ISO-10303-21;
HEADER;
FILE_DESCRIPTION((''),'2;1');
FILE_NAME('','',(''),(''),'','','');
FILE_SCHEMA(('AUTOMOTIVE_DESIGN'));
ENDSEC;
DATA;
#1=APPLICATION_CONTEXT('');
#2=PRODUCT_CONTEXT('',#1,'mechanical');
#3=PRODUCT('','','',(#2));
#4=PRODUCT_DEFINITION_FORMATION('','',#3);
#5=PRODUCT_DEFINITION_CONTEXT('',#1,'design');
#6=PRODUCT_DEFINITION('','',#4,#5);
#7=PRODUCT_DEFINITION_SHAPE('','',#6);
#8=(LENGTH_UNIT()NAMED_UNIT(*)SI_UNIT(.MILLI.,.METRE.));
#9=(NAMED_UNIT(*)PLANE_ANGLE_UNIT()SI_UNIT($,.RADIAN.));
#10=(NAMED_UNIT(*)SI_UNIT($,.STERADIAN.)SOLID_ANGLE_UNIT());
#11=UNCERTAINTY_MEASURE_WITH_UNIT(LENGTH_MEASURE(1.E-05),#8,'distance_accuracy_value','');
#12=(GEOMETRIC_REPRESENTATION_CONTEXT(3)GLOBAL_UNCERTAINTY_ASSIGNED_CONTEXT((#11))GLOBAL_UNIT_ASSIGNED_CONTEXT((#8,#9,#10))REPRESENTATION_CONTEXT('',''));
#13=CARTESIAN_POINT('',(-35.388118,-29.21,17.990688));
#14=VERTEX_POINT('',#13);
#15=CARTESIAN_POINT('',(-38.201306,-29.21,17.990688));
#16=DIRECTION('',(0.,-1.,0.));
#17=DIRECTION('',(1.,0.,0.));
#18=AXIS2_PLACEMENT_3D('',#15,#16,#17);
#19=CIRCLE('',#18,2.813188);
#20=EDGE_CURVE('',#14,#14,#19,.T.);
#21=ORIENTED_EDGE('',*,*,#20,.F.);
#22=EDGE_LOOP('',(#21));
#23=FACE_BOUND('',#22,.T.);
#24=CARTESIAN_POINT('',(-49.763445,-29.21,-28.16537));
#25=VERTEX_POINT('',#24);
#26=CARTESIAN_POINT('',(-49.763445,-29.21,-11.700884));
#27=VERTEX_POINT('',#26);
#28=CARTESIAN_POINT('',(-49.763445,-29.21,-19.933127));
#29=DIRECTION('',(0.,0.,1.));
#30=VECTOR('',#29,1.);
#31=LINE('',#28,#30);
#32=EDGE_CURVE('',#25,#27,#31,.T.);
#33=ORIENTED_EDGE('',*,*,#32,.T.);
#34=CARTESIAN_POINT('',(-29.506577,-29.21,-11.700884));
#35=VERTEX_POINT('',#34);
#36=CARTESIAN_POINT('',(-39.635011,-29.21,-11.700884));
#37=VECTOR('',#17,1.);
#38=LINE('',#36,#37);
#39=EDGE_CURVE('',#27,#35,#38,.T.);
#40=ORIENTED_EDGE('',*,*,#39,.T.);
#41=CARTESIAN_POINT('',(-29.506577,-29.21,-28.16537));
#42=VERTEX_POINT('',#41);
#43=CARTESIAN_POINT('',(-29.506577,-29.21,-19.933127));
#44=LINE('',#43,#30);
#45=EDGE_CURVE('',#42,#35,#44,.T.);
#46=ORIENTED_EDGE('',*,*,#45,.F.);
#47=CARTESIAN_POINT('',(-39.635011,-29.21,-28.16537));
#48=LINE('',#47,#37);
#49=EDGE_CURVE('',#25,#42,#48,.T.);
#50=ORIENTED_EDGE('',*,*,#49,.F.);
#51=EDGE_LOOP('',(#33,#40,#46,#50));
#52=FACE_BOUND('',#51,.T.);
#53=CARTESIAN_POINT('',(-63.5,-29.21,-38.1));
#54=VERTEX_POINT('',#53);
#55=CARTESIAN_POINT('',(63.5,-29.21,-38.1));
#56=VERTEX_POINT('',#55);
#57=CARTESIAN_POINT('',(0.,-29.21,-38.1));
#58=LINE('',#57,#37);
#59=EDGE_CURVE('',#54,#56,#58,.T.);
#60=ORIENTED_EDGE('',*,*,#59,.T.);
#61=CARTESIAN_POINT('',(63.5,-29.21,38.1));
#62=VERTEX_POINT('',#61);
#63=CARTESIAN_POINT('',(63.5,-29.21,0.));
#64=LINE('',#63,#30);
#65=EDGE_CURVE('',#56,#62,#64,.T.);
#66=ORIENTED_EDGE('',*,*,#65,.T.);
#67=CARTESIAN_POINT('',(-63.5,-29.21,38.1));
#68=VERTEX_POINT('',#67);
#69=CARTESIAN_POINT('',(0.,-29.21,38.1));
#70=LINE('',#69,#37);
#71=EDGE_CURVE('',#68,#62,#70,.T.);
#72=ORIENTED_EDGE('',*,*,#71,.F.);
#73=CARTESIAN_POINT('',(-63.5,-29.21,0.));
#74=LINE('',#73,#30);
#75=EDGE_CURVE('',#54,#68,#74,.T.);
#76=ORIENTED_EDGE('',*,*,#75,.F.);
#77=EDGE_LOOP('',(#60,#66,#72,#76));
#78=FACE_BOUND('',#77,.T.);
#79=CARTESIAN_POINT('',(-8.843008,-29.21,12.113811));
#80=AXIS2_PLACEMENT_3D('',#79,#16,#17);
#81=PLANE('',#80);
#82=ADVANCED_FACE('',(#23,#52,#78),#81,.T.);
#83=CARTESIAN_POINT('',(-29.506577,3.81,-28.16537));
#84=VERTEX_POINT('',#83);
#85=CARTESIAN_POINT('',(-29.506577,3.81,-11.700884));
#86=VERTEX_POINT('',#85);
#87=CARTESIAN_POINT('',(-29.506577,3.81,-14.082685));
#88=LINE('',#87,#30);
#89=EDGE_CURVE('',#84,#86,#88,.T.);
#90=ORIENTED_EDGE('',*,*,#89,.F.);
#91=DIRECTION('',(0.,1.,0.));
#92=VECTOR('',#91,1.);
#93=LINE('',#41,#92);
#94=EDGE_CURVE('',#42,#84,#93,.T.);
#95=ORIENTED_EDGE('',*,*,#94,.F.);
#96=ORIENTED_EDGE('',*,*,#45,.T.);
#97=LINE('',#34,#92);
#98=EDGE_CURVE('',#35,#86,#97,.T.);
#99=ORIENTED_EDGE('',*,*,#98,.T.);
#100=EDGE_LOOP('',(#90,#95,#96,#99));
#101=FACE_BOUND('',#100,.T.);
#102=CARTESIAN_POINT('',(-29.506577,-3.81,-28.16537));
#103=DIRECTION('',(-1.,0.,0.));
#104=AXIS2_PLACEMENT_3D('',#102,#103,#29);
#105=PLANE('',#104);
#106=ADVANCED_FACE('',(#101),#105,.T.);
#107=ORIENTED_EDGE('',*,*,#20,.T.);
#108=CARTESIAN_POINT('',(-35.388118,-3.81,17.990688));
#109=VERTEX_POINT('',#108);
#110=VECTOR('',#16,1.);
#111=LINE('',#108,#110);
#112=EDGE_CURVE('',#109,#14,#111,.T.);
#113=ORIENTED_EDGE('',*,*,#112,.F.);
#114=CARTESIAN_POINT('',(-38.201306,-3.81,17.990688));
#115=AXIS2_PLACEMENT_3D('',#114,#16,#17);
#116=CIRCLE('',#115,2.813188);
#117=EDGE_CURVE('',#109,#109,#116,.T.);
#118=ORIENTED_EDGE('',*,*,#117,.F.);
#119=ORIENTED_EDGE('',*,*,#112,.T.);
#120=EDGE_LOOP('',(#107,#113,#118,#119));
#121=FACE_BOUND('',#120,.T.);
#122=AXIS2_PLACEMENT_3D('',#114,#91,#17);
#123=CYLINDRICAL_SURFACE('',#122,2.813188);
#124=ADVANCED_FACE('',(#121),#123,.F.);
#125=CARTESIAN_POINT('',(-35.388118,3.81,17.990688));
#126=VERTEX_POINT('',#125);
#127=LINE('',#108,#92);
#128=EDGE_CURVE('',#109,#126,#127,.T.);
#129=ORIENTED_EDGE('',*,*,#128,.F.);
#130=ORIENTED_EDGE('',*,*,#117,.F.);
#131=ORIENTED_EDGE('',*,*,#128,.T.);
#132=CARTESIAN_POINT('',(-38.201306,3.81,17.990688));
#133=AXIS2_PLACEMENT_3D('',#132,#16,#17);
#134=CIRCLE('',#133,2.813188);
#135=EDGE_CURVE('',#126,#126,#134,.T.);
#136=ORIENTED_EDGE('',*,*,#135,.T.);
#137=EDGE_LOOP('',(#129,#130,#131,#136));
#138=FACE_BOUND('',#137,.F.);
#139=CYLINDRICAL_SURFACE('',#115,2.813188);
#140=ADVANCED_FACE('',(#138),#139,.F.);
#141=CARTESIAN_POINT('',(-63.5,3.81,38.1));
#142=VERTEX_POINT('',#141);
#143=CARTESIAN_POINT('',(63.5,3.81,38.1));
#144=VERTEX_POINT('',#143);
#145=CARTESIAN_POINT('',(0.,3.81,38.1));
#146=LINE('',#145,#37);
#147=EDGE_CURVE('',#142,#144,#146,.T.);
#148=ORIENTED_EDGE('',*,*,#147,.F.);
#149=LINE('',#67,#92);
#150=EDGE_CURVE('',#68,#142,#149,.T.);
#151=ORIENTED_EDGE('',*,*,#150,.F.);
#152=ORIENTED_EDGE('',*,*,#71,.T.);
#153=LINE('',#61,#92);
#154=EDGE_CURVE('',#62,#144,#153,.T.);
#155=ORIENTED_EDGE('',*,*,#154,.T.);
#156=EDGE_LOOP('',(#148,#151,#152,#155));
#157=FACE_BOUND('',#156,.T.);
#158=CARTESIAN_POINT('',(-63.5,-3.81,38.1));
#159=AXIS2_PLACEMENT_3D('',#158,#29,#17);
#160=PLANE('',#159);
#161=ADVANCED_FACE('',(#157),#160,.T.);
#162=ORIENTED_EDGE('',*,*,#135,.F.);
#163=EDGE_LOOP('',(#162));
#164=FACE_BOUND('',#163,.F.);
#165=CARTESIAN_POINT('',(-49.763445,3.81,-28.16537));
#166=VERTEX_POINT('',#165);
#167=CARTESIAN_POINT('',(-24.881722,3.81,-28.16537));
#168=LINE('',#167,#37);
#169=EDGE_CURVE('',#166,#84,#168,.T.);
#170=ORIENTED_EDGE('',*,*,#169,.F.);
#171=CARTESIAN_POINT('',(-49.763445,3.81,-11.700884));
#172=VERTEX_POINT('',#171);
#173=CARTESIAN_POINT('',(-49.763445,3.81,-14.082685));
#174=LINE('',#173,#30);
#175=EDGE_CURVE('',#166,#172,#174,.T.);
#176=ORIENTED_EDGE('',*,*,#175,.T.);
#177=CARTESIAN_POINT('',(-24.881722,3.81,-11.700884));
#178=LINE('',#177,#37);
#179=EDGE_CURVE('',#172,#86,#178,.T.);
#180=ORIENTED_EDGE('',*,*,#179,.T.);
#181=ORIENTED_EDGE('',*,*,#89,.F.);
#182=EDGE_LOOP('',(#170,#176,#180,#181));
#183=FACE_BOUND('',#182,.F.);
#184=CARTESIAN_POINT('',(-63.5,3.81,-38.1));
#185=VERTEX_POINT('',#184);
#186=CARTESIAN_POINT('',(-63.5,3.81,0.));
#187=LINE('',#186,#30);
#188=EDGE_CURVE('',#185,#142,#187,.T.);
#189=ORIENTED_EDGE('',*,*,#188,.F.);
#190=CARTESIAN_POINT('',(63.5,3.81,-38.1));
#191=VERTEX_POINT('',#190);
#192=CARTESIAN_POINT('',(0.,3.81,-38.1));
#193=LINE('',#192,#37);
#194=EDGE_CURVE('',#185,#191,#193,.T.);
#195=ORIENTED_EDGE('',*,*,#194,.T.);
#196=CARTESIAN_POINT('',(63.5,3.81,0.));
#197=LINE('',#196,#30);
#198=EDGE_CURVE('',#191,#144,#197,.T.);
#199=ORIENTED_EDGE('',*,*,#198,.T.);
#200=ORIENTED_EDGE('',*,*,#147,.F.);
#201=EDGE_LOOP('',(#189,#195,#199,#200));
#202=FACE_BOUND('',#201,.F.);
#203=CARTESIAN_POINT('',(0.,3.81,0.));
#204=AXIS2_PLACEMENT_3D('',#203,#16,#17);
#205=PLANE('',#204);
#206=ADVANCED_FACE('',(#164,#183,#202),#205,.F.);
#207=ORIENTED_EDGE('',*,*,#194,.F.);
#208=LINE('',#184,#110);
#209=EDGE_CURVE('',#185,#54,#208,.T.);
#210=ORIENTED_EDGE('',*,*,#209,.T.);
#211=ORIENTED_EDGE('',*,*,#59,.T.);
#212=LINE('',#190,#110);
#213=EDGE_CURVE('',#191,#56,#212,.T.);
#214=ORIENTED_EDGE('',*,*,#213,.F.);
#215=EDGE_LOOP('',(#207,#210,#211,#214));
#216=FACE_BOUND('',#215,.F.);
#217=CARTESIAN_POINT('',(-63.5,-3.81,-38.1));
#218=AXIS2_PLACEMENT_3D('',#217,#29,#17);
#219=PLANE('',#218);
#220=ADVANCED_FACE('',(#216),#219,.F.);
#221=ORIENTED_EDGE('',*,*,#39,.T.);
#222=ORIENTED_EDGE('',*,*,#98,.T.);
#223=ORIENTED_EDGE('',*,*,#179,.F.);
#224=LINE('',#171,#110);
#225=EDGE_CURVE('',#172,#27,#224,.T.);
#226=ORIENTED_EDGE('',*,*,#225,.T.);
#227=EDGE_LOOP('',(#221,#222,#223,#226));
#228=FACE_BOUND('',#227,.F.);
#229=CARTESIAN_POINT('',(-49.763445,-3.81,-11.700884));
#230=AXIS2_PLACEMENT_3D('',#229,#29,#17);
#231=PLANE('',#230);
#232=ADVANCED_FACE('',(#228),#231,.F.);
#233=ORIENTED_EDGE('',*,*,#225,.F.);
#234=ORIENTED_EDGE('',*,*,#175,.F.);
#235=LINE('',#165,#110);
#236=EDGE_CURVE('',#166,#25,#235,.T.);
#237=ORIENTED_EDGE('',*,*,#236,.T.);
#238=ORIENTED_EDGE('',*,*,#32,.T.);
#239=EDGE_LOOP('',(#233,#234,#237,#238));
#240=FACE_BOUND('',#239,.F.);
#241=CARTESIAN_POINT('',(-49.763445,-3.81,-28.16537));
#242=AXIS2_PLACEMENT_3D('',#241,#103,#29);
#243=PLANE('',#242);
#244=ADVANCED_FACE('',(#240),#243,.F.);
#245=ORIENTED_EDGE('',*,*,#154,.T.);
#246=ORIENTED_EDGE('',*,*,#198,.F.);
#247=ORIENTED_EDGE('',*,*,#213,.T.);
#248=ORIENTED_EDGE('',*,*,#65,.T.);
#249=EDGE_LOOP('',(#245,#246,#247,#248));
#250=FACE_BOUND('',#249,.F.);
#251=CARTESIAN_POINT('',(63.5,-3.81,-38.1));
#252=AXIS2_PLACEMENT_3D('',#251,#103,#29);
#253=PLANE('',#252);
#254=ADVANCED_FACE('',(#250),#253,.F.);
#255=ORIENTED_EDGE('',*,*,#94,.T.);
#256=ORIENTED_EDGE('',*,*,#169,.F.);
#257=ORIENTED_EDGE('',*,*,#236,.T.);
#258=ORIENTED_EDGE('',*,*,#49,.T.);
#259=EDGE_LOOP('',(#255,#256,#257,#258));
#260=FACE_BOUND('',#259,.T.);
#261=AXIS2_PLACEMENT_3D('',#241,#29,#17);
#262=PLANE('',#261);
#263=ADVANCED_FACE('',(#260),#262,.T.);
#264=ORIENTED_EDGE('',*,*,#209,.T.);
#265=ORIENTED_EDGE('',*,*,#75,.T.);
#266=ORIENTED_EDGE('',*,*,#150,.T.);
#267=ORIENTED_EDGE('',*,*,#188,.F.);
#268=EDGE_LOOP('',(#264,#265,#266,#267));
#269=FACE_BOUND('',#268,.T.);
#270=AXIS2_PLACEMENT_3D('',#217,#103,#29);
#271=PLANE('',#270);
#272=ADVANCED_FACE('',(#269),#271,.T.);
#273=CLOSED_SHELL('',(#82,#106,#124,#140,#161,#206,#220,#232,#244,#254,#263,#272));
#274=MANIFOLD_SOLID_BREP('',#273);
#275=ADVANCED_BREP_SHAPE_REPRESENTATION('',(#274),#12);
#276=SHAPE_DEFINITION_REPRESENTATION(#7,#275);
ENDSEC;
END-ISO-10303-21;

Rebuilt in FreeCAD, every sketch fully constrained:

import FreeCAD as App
import Part
import Sketcher

V = App.Vector
Q = App.Units.Quantity

doc = App.newDocument("Part")
body = doc.addObject("PartDesign::Body", "Body")

sketch1 = body.newObject("Sketcher::SketchObject", "Sketch")
sketch1.AttachmentSupport = (doc.getObject("XZ_Plane"), [""])
sketch1.MapMode = "FlatFace"
sketch1.addGeometry(Part.LineSegment(V(-64, 38, 0), V(-64, -38, 0)), False)
sketch1.addGeometry(Part.LineSegment(V(-64, -38, 0), V(64, -38, 0)), False)
sketch1.addGeometry(Part.LineSegment(V(64, -38, 0), V(64, 38, 0)), False)
sketch1.addGeometry(Part.LineSegment(V(64, 38, 0), V(-64, 38, 0)), False)
sketch1.addConstraint(Sketcher.Constraint("Coincident", 0, 2, 1, 1))
sketch1.addConstraint(Sketcher.Constraint("Coincident", 1, 2, 2, 1))
sketch1.addConstraint(Sketcher.Constraint("Coincident", 2, 2, 3, 1))
sketch1.addConstraint(Sketcher.Constraint("Coincident", 3, 2, 0, 1))
sketch1.addConstraint(Sketcher.Constraint("Vertical", 0))
sketch1.addConstraint(Sketcher.Constraint("Horizontal", 1))
sketch1.addConstraint(Sketcher.Constraint("Vertical", 2))
sketch1.addConstraint(Sketcher.Constraint("Horizontal", 3))
sketch1.addConstraint(Sketcher.Constraint("Symmetric", 0, 2, 2, 2, -1, 1))
sketch1.addConstraint(Sketcher.Constraint("DistanceX", 1, 1, 1, 2, Q("5 in")))
sketch1.addConstraint(Sketcher.Constraint("DistanceY", 0, 2, 0, 1, Q("3 in")))
pad1 = body.newObject("PartDesign::Pad", "Pad")
pad1.Profile = sketch1
pad1.Length = Q("0.3 in")
pad1.Midplane = True

sketch2 = body.newObject("Sketcher::SketchObject", "Sketch001")
sketch2.AttachmentSupport = (doc.getObject("XZ_Plane"), [""])
sketch2.MapMode = "FlatFace"
sketch2.AttachmentOffset = App.Placement(V(0, 0, 0.15 * 25.4), App.Rotation())
sketch2.addGeometry(Part.Circle(V(-38.2, 18, 0), V(0, 0, 1), 2.8), False)
sketch2.addConstraint(Sketcher.Constraint("Diameter", 0, Q("5.626376 mm")))
sketch2.addConstraint(Sketcher.Constraint("DistanceX", 0, 3, -1, 1, Q("38.201306 mm")))
sketch2.addConstraint(Sketcher.Constraint("DistanceY", -1, 1, 0, 3, Q("17.990688 mm")))
pocket1 = body.newObject("PartDesign::Pocket", "Pocket")
pocket1.Profile = sketch2
pocket1.Length = Q("1 in")

sketch3 = body.newObject("Sketcher::SketchObject", "Sketch002")
sketch3.AttachmentSupport = (doc.getObject("XZ_Plane"), [""])
sketch3.MapMode = "FlatFace"
sketch3.AttachmentOffset = App.Placement(V(0, 0, 0.15 * 25.4), App.Rotation())
sketch3.addGeometry(Part.LineSegment(V(-50, -12, 0), V(-50, -28, 0)), False)
sketch3.addGeometry(Part.LineSegment(V(-50, -28, 0), V(-30, -28, 0)), False)
sketch3.addGeometry(Part.LineSegment(V(-30, -28, 0), V(-30, -12, 0)), False)
sketch3.addGeometry(Part.LineSegment(V(-30, -12, 0), V(-50, -12, 0)), False)
sketch3.addConstraint(Sketcher.Constraint("Coincident", 0, 2, 1, 1))
sketch3.addConstraint(Sketcher.Constraint("Coincident", 1, 2, 2, 1))
sketch3.addConstraint(Sketcher.Constraint("Coincident", 2, 2, 3, 1))
sketch3.addConstraint(Sketcher.Constraint("Coincident", 3, 2, 0, 1))
sketch3.addConstraint(Sketcher.Constraint("Vertical", 0))
sketch3.addConstraint(Sketcher.Constraint("Horizontal", 1))
sketch3.addConstraint(Sketcher.Constraint("Vertical", 2))
sketch3.addConstraint(Sketcher.Constraint("Horizontal", 3))
sketch3.addConstraint(Sketcher.Constraint("DistanceX", 1, 1, 1, 2, Q("20.256868 mm")))
sketch3.addConstraint(Sketcher.Constraint("DistanceY", 0, 2, 0, 1, Q("16.464486 mm")))
sketch3.addConstraint(Sketcher.Constraint("DistanceY", 0, 2, -1, 1, Q("28.16537 mm")))
sketch3.addConstraint(Sketcher.Constraint("DistanceX", 0, 2, -1, 1, Q("49.763445 mm")))
pocket2 = body.newObject("PartDesign::Pocket", "Pocket001")
pocket2.Profile = sketch3
pocket2.Length = Q("4 in")

sketch4 = body.newObject("Sketcher::SketchObject", "Sketch003")
sketch4.AttachmentSupport = (doc.getObject("XZ_Plane"), [""])
sketch4.MapMode = "FlatFace"
sketch4.AttachmentOffset = App.Placement(V(0, 0, 0.15 * 25.4), App.Rotation())
sketch4.addGeometry(Part.LineSegment(V(-63.5, 38.1, 0), V(-63.5, -38.1, 0)), False)
sketch4.addGeometry(Part.LineSegment(V(-63.5, -38.1, 0), V(63.5, -38.1, 0)), False)
sketch4.addGeometry(Part.LineSegment(V(63.5, -38.1, 0), V(63.5, 38.1, 0)), False)
sketch4.addGeometry(Part.LineSegment(V(63.5, 38.1, 0), V(-63.5, 38.1, 0)), False)
sketch4.addGeometry(Part.LineSegment(V(-29.5, -28.2, 0), V(-49.8, -28.2, 0)), False)
sketch4.addGeometry(Part.LineSegment(V(-49.8, -28.2, 0), V(-49.8, -11.7, 0)), False)
sketch4.addGeometry(Part.LineSegment(V(-49.8, -11.7, 0), V(-29.5, -11.7, 0)), False)
sketch4.addGeometry(Part.LineSegment(V(-29.5, -11.7, 0), V(-29.5, -28.2, 0)), False)
sketch4.addGeometry(Part.Circle(V(-38.2, 18, 0), V(0, 0, 1), 2.8), False)
sketch4.addConstraint(Sketcher.Constraint("Coincident", 0, 2, 1, 1))
sketch4.addConstraint(Sketcher.Constraint("Coincident", 1, 2, 2, 1))
sketch4.addConstraint(Sketcher.Constraint("Coincident", 2, 2, 3, 1))
sketch4.addConstraint(Sketcher.Constraint("Coincident", 3, 2, 0, 1))
sketch4.addConstraint(Sketcher.Constraint("Coincident", 4, 2, 5, 1))
sketch4.addConstraint(Sketcher.Constraint("Coincident", 5, 2, 6, 1))
sketch4.addConstraint(Sketcher.Constraint("Coincident", 6, 2, 7, 1))
sketch4.addConstraint(Sketcher.Constraint("Coincident", 7, 2, 4, 1))
sketch4.addConstraint(Sketcher.Constraint("Vertical", 0))
sketch4.addConstraint(Sketcher.Constraint("Horizontal", 1))
sketch4.addConstraint(Sketcher.Constraint("Vertical", 2))
sketch4.addConstraint(Sketcher.Constraint("Horizontal", 3))
sketch4.addConstraint(Sketcher.Constraint("Horizontal", 4))
sketch4.addConstraint(Sketcher.Constraint("Vertical", 5))
sketch4.addConstraint(Sketcher.Constraint("Horizontal", 6))
sketch4.addConstraint(Sketcher.Constraint("Vertical", 7))
sketch4.addConstraint(Sketcher.Constraint("Symmetric", 0, 2, 2, 2, -1, 1))
sketch4.addConstraint(Sketcher.Constraint("DistanceX", 1, 1, 1, 2, Q("5 in")))
sketch4.addConstraint(Sketcher.Constraint("DistanceY", 0, 2, 0, 1, Q("3 in")))
sketch4.addConstraint(Sketcher.Constraint("Diameter", 8, Q("5.626376 mm")))
sketch4.addConstraint(Sketcher.Constraint("DistanceX", 4, 2, 4, 1, Q("20.256868 mm")))
sketch4.addConstraint(Sketcher.Constraint("DistanceY", 5, 1, 5, 2, Q("16.464486 mm")))
sketch4.addConstraint(Sketcher.Constraint("DistanceY", 4, 2, -1, 1, Q("28.16537 mm")))
sketch4.addConstraint(Sketcher.Constraint("DistanceX", 4, 2, 8, 3, Q("11.562139 mm")))
sketch4.addConstraint(Sketcher.Constraint("DistanceY", 4, 2, 8, 3, Q("46.156058 mm")))
sketch4.addConstraint(Sketcher.Constraint("DistanceX", 8, 3, -1, 1, Q("38.201306 mm")))
pad2 = body.newObject("PartDesign::Pad", "Pad001")
pad2.Profile = sketch4
pad2.Length = Q("1 in")

doc.recompute()
